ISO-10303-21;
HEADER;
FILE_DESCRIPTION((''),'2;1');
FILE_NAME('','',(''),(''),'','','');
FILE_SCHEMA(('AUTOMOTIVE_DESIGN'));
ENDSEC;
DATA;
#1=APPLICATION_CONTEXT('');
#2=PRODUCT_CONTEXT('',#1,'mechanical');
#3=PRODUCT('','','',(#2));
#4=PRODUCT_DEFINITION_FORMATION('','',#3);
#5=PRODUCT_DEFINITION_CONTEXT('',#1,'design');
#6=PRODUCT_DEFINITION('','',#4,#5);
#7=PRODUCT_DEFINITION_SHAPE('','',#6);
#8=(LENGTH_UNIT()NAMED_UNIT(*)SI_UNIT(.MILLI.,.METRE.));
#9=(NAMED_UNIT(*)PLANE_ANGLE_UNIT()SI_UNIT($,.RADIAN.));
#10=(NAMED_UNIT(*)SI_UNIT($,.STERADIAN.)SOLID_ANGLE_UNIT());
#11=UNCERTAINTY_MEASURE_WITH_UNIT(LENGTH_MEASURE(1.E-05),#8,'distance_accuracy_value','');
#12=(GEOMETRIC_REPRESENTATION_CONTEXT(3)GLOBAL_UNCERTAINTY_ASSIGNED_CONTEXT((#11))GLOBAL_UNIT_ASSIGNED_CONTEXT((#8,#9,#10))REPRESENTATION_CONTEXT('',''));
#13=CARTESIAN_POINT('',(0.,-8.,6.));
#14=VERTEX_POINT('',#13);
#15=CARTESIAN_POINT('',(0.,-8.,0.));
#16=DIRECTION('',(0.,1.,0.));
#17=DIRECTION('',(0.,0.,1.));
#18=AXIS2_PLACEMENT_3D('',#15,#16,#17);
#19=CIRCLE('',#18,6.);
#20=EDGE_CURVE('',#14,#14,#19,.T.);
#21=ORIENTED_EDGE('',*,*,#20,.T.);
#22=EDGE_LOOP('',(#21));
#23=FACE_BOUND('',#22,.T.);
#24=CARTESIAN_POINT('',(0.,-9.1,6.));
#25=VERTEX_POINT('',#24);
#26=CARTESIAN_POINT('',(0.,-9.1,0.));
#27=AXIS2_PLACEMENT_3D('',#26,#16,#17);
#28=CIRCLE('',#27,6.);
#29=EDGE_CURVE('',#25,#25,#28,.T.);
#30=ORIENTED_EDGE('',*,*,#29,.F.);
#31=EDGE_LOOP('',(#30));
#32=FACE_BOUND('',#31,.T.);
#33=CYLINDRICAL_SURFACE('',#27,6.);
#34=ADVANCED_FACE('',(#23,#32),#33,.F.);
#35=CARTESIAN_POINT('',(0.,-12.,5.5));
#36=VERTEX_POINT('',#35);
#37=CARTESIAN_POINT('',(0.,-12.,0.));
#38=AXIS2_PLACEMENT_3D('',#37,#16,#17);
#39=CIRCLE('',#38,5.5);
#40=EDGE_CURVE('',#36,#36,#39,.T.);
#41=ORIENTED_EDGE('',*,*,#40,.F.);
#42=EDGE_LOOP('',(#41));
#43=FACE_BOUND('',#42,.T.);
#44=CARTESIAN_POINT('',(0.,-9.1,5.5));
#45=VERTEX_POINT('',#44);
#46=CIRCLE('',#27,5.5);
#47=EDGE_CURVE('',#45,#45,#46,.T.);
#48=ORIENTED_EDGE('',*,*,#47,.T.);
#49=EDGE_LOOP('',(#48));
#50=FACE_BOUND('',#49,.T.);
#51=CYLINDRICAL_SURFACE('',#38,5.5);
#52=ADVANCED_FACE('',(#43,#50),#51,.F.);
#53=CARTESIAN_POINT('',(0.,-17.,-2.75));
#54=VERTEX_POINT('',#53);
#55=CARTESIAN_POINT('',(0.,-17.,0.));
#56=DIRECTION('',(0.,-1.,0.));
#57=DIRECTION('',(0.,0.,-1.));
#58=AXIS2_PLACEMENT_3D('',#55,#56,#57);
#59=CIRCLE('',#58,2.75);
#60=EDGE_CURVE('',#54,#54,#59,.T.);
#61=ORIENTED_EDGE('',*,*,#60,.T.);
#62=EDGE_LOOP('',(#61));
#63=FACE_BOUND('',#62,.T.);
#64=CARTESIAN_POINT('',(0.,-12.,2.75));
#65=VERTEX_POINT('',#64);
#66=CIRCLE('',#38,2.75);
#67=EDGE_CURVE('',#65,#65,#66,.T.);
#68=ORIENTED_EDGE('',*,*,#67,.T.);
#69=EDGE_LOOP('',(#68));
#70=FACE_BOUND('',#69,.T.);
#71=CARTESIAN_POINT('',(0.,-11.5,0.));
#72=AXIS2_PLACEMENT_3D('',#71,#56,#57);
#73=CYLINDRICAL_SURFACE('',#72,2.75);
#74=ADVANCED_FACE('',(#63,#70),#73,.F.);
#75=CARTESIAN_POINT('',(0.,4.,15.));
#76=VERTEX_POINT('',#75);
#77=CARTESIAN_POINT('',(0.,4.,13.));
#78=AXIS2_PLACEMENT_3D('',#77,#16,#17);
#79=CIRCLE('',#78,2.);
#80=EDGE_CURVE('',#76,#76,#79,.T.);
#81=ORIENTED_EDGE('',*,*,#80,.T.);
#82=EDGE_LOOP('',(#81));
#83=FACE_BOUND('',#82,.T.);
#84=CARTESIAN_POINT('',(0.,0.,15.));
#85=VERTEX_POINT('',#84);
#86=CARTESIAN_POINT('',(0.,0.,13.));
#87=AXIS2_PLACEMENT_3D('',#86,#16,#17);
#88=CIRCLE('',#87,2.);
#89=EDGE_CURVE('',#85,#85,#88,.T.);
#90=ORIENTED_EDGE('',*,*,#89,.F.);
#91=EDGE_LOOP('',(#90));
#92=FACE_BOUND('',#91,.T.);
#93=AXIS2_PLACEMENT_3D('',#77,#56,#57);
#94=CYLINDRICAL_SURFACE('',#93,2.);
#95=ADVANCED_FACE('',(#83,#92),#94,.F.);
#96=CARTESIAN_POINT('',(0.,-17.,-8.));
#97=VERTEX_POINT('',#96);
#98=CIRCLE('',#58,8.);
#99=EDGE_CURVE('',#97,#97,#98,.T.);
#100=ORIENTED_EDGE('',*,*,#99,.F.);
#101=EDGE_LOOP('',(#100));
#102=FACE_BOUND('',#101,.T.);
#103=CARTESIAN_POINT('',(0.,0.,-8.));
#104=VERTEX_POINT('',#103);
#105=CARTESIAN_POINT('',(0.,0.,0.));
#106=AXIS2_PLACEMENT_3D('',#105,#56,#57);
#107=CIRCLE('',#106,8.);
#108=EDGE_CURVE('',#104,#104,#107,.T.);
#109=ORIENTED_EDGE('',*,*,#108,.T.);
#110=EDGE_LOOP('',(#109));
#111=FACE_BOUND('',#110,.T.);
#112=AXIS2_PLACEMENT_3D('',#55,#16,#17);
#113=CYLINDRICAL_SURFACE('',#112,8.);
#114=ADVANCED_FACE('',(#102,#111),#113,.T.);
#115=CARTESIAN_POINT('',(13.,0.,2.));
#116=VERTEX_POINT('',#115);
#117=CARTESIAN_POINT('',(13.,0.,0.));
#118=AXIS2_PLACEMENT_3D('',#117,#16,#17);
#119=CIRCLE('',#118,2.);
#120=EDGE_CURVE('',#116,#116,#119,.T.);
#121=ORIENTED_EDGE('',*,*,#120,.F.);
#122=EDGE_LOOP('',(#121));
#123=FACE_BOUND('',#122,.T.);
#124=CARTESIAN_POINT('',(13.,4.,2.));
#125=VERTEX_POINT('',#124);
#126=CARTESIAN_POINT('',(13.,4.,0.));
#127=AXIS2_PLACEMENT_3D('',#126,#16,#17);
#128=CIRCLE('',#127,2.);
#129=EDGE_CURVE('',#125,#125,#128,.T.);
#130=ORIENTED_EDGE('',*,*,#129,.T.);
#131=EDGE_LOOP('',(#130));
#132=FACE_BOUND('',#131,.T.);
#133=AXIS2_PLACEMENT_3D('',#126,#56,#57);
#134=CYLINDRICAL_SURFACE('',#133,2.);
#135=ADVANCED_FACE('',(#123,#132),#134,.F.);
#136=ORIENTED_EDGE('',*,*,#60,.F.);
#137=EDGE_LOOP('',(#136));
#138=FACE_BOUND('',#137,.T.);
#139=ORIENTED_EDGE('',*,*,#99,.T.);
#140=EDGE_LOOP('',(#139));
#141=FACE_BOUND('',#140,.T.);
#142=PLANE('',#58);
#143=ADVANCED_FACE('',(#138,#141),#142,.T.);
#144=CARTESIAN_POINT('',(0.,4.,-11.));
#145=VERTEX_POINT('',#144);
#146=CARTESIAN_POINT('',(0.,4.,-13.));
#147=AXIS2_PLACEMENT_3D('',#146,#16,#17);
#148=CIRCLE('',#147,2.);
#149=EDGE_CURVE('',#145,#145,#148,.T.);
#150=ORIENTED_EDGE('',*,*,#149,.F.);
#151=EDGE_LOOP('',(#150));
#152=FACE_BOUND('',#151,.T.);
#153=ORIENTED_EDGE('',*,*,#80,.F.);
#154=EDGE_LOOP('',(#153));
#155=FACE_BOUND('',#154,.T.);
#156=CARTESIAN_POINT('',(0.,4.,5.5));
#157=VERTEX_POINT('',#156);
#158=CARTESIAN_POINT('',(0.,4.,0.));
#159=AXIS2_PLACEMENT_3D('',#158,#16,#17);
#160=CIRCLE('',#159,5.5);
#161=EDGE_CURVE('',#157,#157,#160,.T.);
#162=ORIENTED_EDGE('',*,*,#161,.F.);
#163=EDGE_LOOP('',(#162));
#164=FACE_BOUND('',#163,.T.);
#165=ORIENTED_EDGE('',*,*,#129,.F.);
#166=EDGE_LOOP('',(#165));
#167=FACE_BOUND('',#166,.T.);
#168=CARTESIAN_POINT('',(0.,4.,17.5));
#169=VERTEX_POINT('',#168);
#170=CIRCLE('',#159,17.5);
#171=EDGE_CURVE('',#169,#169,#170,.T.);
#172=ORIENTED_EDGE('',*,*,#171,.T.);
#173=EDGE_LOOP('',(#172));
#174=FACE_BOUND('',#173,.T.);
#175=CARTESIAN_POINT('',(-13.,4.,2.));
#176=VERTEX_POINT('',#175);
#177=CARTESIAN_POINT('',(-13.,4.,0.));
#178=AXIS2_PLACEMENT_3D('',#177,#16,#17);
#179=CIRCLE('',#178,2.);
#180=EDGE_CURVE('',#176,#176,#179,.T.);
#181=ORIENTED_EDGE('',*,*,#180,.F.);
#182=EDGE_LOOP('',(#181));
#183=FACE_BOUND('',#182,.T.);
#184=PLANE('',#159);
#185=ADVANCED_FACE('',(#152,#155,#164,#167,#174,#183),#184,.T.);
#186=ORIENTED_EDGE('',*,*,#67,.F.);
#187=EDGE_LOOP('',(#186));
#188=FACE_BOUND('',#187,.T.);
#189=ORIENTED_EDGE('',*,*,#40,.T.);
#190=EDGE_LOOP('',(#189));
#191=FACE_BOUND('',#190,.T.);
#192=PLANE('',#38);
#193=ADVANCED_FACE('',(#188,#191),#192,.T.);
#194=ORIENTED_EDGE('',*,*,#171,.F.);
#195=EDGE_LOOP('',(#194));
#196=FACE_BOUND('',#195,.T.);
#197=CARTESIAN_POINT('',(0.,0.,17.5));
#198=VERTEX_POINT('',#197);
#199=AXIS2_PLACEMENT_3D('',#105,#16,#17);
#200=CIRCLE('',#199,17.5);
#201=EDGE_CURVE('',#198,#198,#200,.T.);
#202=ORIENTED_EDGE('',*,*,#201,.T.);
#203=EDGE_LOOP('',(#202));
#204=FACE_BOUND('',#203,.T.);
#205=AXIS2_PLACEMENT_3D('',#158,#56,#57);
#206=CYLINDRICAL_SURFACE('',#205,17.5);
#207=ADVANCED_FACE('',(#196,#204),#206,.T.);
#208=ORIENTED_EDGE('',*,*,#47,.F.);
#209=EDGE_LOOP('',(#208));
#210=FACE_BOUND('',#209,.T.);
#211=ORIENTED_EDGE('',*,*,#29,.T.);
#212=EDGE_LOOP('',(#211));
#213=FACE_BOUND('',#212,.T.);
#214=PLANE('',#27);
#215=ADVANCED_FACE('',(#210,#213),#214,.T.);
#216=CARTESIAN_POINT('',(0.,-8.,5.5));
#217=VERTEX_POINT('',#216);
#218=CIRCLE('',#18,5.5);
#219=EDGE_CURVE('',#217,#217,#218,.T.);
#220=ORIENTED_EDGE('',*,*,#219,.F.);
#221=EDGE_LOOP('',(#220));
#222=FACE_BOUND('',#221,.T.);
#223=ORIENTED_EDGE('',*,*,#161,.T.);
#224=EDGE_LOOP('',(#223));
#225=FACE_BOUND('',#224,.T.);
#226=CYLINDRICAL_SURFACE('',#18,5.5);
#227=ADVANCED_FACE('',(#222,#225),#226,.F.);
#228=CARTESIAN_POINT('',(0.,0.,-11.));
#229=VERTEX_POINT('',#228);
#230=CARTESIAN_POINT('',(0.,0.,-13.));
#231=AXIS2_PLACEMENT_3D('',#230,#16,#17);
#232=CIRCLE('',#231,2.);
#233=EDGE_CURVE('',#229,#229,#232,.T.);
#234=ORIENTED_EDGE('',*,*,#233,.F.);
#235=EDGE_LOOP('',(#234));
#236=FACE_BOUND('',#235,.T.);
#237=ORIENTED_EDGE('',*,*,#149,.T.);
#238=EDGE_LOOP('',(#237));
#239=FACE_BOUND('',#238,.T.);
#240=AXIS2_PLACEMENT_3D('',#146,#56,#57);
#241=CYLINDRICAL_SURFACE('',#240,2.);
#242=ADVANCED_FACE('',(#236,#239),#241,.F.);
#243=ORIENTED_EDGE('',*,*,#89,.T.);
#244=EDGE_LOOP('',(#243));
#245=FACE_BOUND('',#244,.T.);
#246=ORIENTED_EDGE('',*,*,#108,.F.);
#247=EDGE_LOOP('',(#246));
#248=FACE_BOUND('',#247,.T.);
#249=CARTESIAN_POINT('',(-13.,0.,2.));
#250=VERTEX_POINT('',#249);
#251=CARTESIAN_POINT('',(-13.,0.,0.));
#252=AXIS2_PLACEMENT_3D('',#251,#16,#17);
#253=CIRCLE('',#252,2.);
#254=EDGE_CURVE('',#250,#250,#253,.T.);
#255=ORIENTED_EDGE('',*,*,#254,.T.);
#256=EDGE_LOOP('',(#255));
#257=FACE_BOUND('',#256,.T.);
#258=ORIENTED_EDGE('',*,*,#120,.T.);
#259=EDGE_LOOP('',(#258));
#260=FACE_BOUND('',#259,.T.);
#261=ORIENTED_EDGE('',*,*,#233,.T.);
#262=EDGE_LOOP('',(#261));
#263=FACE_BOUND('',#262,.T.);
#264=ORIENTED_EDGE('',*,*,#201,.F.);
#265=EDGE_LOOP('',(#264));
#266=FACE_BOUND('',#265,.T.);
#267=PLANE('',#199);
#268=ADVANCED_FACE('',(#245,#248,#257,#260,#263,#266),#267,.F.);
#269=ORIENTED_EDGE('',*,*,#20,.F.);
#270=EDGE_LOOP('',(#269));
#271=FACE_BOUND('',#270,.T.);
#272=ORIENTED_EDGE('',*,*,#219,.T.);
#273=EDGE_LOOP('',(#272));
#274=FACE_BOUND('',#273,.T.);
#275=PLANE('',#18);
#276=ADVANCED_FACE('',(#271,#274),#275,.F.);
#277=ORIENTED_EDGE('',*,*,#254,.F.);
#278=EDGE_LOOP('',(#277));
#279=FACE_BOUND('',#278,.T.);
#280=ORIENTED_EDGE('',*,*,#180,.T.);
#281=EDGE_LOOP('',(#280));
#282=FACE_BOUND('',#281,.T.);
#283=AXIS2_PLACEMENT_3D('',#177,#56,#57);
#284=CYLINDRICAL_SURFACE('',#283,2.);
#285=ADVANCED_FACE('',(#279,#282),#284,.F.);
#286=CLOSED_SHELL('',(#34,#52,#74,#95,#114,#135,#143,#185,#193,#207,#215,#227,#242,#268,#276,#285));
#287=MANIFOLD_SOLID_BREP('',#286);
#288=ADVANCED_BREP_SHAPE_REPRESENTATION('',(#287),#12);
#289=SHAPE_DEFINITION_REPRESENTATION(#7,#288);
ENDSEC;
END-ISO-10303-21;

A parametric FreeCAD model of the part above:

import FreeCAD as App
import Part
import Sketcher
from FreeCAD import Vector

doc = App.newDocument("Part")
params = doc.addObject("Spreadsheet::Sheet", "Params")
for row, (alias, value) in enumerate([
    ("sketch1_diameter", "35 mm"),
    ("sketch1_diameter2", "4 mm"),
    ("pad1_length", "4 mm"),
    ("sketch2_diameter", "16 mm"),
    ("pad2_length", "17 mm"),
    ("sketch3_diameter", "11 mm"),
    ("pocket1_length", "12 mm"),
    ("sketch4_diameter", "12 mm"),
    ("pocket2_length", "1.1 mm"),
    ("sketch5_diameter", "11 mm"),
    ("pocket3_length", "2.9 mm"),
    ("sketch6_diameter", "5.5 mm"),
    ("pocket4_length", "5.5 mm"),
], start=1):
    params.set(f"A{row}", alias)
    params.set(f"B{row}", "=" + value)
    params.setAlias(f"B{row}", alias)

body = doc.addObject("PartDesign::Body", "Body")

# Sketch on XZ plane
sketch1 = doc.addObject("Sketcher::SketchObject", "Sketch")
body.addObject(sketch1)
sketch1.AttachmentSupport = (doc.XZ_Plane, [""])
sketch1.MapMode = "FlatFace"
sketch1.addGeometry(Part.Circle(Vector(0, 0, 0), Vector(0, 0, 1), 17.5), False)
sketch1.addGeometry(Part.Circle(Vector(0, -13, 0), Vector(0, 0, 1), 2), False)
sketch1.addGeometry(Part.Circle(Vector(-13, 0, 0), Vector(0, 0, 1), 2), False)
sketch1.addGeometry(Part.Circle(Vector(13, 0, 0), Vector(0, 0, 1), 2), False)
sketch1.addGeometry(Part.Circle(Vector(0, 13, 0), Vector(0, 0, 1), 2), False)
sketch1.addConstraint(Sketcher.Constraint("Coincident", 0, 3, -1, 1))
sketch1.addConstraint(Sketcher.Constraint("Equal", 1, 2))
sketch1.addConstraint(Sketcher.Constraint("Equal", 2, 3))
sketch1.addConstraint(Sketcher.Constraint("Equal", 3, 4))
sketch1.addConstraint(Sketcher.Constraint("Symmetric", 2, 3, 3, 3, -1, 1))
sketch1.addConstraint(Sketcher.Constraint("Symmetric", 1, 3, 4, 3, -1, 1))
sketch1.addConstraint(Sketcher.Constraint("PointOnObject", 1, 3, -2))
sketch1.addConstraint(Sketcher.Constraint("PointOnObject", 2, 3, -1))
sketch1.addConstraint(Sketcher.Constraint("Diameter", 0, 35.0))
sketch1.addConstraint(Sketcher.Constraint("Diameter", 1, 4.0))
sketch1.addConstraint(Sketcher.Constraint("DistanceY", 1, 3, -1, 1, 13.0))
sketch1.addConstraint(Sketcher.Constraint("DistanceX", 2, 3, -1, 1, 13.0))
sketch1.setExpression("Constraints[8]", "Params.sketch1_diameter")
sketch1.setExpression("Constraints[9]", "Params.sketch1_diameter2")
pad1 = doc.addObject("PartDesign::Pad", "Pad")
body.addObject(pad1)
pad1.Profile = sketch1
pad1.setExpression("Length", "Params.pad1_length")
pad1.Reversed = True

# Sketch on XZ plane
sketch2 = doc.addObject("Sketcher::SketchObject", "Sketch001")
body.addObject(sketch2)
sketch2.AttachmentSupport = (doc.XZ_Plane, [""])
sketch2.MapMode = "FlatFace"
sketch2.addGeometry(Part.Circle(Vector(0, 0, 0), Vector(0, 0, 1), 8), False)
sketch2.addConstraint(Sketcher.Constraint("Coincident", 0, 3, -1, 1))
sketch2.addConstraint(Sketcher.Constraint("Diameter", 0, 16.0))
sketch2.setExpression("Constraints[1]", "Params.sketch2_diameter")
pad2 = doc.addObject("PartDesign::Pad", "Pad001")
body.addObject(pad2)
pad2.Profile = sketch2
pad2.setExpression("Length", "Params.pad2_length")

# Sketch on XZ plane
sketch3 = doc.addObject("Sketcher::SketchObject", "Sketch002")
body.addObject(sketch3)
sketch3.AttachmentSupport = (doc.XZ_Plane, [""])
sketch3.MapMode = "FlatFace"
sketch3.AttachmentOffset = App.Placement(Vector(0, 0, -4), App.Rotation())
sketch3.addGeometry(Part.Circle(Vector(0, 0, 0), Vector(0, 0, 1), 6), False)
sketch3.addConstraint(Sketcher.Constraint("Coincident", 0, 3, -1, 1))
sketch3.addConstraint(Sketcher.Constraint("Diameter", 0, 11.0))
sketch3.setExpression("Constraints[1]", "Params.sketch3_diameter")
pocket1 = doc.addObject("PartDesign::Pocket", "Pocket")
body.addObject(pocket1)
pocket1.Profile = sketch3
pocket1.setExpression("Length", "Params.pocket1_length")
pocket1.Reversed = True

# Sketch on XZ plane
sketch4 = doc.addObject("Sketcher::SketchObject", "Sketch003")
body.addObject(sketch4)
sketch4.AttachmentSupport = (doc.XZ_Plane, [""])
sketch4.MapMode = "FlatFace"
sketch4.AttachmentOffset = App.Placement(Vector(0, 0, 8), App.Rotation())
sketch4.addGeometry(Part.Circle(Vector(0, 0, 0), Vector(0, 0, 1), 6), False)
sketch4.addConstraint(Sketcher.Constraint("Coincident", 0, 3, -1, 1))
sketch4.addConstraint(Sketcher.Constraint("Diameter", 0, 12.0))
sketch4.setExpression("Constraints[1]", "Params.sketch4_diameter")
pocket2 = doc.addObject("PartDesign::Pocket", "Pocket001")
body.addObject(pocket2)
pocket2.Profile = sketch4
pocket2.setExpression("Length", "Params.pocket2_length")
pocket2.Reversed = True

# Sketch on XZ plane
sketch5 = doc.addObject("Sketcher::SketchObject", "Sketch004")
body.addObject(sketch5)
sketch5.AttachmentSupport = (doc.XZ_Plane, [""])
sketch5.MapMode = "FlatFace"
sketch5.AttachmentOffset = App.Placement(Vector(0, 0, 9.1), App.Rotation())
sketch5.addGeometry(Part.Circle(Vector(0, 0, 0), Vector(0, 0, 1), 6), False)
sketch5.addConstraint(Sketcher.Constraint("Coincident", 0, 3, -1, 1))
sketch5.addConstraint(Sketcher.Constraint("Diameter", 0, 11.0))
sketch5.setExpression("Constraints[1]", "Params.sketch5_diameter")
pocket3 = doc.addObject("PartDesign::Pocket", "Pocket002")
body.addObject(pocket3)
pocket3.Profile = sketch5
pocket3.setExpression("Length", "Params.pocket3_length")
pocket3.Reversed = True

# Sketch on XZ plane
sketch6 = doc.addObject("Sketcher::SketchObject", "Sketch005")
body.addObject(sketch6)
sketch6.AttachmentSupport = (doc.XZ_Plane, [""])
sketch6.MapMode = "FlatFace"
sketch6.AttachmentOffset = App.Placement(Vector(0, 0, 17), App.Rotation())
sketch6.addGeometry(Part.Circle(Vector(0, 0, 0), Vector(0, 0, 1), 2.8), False)
sketch6.addConstraint(Sketcher.Constraint("Coincident", 0, 3, -1, 1))
sketch6.addConstraint(Sketcher.Constraint("Diameter", 0, 5.5))
sketch6.setExpression("Constraints[1]", "Params.sketch6_diameter")
pocket4 = doc.addObject("PartDesign::Pocket", "Pocket003")
body.addObject(pocket4)
pocket4.Profile = sketch6
pocket4.setExpression("Length", "Params.pocket4_length")

doc.recompute()
